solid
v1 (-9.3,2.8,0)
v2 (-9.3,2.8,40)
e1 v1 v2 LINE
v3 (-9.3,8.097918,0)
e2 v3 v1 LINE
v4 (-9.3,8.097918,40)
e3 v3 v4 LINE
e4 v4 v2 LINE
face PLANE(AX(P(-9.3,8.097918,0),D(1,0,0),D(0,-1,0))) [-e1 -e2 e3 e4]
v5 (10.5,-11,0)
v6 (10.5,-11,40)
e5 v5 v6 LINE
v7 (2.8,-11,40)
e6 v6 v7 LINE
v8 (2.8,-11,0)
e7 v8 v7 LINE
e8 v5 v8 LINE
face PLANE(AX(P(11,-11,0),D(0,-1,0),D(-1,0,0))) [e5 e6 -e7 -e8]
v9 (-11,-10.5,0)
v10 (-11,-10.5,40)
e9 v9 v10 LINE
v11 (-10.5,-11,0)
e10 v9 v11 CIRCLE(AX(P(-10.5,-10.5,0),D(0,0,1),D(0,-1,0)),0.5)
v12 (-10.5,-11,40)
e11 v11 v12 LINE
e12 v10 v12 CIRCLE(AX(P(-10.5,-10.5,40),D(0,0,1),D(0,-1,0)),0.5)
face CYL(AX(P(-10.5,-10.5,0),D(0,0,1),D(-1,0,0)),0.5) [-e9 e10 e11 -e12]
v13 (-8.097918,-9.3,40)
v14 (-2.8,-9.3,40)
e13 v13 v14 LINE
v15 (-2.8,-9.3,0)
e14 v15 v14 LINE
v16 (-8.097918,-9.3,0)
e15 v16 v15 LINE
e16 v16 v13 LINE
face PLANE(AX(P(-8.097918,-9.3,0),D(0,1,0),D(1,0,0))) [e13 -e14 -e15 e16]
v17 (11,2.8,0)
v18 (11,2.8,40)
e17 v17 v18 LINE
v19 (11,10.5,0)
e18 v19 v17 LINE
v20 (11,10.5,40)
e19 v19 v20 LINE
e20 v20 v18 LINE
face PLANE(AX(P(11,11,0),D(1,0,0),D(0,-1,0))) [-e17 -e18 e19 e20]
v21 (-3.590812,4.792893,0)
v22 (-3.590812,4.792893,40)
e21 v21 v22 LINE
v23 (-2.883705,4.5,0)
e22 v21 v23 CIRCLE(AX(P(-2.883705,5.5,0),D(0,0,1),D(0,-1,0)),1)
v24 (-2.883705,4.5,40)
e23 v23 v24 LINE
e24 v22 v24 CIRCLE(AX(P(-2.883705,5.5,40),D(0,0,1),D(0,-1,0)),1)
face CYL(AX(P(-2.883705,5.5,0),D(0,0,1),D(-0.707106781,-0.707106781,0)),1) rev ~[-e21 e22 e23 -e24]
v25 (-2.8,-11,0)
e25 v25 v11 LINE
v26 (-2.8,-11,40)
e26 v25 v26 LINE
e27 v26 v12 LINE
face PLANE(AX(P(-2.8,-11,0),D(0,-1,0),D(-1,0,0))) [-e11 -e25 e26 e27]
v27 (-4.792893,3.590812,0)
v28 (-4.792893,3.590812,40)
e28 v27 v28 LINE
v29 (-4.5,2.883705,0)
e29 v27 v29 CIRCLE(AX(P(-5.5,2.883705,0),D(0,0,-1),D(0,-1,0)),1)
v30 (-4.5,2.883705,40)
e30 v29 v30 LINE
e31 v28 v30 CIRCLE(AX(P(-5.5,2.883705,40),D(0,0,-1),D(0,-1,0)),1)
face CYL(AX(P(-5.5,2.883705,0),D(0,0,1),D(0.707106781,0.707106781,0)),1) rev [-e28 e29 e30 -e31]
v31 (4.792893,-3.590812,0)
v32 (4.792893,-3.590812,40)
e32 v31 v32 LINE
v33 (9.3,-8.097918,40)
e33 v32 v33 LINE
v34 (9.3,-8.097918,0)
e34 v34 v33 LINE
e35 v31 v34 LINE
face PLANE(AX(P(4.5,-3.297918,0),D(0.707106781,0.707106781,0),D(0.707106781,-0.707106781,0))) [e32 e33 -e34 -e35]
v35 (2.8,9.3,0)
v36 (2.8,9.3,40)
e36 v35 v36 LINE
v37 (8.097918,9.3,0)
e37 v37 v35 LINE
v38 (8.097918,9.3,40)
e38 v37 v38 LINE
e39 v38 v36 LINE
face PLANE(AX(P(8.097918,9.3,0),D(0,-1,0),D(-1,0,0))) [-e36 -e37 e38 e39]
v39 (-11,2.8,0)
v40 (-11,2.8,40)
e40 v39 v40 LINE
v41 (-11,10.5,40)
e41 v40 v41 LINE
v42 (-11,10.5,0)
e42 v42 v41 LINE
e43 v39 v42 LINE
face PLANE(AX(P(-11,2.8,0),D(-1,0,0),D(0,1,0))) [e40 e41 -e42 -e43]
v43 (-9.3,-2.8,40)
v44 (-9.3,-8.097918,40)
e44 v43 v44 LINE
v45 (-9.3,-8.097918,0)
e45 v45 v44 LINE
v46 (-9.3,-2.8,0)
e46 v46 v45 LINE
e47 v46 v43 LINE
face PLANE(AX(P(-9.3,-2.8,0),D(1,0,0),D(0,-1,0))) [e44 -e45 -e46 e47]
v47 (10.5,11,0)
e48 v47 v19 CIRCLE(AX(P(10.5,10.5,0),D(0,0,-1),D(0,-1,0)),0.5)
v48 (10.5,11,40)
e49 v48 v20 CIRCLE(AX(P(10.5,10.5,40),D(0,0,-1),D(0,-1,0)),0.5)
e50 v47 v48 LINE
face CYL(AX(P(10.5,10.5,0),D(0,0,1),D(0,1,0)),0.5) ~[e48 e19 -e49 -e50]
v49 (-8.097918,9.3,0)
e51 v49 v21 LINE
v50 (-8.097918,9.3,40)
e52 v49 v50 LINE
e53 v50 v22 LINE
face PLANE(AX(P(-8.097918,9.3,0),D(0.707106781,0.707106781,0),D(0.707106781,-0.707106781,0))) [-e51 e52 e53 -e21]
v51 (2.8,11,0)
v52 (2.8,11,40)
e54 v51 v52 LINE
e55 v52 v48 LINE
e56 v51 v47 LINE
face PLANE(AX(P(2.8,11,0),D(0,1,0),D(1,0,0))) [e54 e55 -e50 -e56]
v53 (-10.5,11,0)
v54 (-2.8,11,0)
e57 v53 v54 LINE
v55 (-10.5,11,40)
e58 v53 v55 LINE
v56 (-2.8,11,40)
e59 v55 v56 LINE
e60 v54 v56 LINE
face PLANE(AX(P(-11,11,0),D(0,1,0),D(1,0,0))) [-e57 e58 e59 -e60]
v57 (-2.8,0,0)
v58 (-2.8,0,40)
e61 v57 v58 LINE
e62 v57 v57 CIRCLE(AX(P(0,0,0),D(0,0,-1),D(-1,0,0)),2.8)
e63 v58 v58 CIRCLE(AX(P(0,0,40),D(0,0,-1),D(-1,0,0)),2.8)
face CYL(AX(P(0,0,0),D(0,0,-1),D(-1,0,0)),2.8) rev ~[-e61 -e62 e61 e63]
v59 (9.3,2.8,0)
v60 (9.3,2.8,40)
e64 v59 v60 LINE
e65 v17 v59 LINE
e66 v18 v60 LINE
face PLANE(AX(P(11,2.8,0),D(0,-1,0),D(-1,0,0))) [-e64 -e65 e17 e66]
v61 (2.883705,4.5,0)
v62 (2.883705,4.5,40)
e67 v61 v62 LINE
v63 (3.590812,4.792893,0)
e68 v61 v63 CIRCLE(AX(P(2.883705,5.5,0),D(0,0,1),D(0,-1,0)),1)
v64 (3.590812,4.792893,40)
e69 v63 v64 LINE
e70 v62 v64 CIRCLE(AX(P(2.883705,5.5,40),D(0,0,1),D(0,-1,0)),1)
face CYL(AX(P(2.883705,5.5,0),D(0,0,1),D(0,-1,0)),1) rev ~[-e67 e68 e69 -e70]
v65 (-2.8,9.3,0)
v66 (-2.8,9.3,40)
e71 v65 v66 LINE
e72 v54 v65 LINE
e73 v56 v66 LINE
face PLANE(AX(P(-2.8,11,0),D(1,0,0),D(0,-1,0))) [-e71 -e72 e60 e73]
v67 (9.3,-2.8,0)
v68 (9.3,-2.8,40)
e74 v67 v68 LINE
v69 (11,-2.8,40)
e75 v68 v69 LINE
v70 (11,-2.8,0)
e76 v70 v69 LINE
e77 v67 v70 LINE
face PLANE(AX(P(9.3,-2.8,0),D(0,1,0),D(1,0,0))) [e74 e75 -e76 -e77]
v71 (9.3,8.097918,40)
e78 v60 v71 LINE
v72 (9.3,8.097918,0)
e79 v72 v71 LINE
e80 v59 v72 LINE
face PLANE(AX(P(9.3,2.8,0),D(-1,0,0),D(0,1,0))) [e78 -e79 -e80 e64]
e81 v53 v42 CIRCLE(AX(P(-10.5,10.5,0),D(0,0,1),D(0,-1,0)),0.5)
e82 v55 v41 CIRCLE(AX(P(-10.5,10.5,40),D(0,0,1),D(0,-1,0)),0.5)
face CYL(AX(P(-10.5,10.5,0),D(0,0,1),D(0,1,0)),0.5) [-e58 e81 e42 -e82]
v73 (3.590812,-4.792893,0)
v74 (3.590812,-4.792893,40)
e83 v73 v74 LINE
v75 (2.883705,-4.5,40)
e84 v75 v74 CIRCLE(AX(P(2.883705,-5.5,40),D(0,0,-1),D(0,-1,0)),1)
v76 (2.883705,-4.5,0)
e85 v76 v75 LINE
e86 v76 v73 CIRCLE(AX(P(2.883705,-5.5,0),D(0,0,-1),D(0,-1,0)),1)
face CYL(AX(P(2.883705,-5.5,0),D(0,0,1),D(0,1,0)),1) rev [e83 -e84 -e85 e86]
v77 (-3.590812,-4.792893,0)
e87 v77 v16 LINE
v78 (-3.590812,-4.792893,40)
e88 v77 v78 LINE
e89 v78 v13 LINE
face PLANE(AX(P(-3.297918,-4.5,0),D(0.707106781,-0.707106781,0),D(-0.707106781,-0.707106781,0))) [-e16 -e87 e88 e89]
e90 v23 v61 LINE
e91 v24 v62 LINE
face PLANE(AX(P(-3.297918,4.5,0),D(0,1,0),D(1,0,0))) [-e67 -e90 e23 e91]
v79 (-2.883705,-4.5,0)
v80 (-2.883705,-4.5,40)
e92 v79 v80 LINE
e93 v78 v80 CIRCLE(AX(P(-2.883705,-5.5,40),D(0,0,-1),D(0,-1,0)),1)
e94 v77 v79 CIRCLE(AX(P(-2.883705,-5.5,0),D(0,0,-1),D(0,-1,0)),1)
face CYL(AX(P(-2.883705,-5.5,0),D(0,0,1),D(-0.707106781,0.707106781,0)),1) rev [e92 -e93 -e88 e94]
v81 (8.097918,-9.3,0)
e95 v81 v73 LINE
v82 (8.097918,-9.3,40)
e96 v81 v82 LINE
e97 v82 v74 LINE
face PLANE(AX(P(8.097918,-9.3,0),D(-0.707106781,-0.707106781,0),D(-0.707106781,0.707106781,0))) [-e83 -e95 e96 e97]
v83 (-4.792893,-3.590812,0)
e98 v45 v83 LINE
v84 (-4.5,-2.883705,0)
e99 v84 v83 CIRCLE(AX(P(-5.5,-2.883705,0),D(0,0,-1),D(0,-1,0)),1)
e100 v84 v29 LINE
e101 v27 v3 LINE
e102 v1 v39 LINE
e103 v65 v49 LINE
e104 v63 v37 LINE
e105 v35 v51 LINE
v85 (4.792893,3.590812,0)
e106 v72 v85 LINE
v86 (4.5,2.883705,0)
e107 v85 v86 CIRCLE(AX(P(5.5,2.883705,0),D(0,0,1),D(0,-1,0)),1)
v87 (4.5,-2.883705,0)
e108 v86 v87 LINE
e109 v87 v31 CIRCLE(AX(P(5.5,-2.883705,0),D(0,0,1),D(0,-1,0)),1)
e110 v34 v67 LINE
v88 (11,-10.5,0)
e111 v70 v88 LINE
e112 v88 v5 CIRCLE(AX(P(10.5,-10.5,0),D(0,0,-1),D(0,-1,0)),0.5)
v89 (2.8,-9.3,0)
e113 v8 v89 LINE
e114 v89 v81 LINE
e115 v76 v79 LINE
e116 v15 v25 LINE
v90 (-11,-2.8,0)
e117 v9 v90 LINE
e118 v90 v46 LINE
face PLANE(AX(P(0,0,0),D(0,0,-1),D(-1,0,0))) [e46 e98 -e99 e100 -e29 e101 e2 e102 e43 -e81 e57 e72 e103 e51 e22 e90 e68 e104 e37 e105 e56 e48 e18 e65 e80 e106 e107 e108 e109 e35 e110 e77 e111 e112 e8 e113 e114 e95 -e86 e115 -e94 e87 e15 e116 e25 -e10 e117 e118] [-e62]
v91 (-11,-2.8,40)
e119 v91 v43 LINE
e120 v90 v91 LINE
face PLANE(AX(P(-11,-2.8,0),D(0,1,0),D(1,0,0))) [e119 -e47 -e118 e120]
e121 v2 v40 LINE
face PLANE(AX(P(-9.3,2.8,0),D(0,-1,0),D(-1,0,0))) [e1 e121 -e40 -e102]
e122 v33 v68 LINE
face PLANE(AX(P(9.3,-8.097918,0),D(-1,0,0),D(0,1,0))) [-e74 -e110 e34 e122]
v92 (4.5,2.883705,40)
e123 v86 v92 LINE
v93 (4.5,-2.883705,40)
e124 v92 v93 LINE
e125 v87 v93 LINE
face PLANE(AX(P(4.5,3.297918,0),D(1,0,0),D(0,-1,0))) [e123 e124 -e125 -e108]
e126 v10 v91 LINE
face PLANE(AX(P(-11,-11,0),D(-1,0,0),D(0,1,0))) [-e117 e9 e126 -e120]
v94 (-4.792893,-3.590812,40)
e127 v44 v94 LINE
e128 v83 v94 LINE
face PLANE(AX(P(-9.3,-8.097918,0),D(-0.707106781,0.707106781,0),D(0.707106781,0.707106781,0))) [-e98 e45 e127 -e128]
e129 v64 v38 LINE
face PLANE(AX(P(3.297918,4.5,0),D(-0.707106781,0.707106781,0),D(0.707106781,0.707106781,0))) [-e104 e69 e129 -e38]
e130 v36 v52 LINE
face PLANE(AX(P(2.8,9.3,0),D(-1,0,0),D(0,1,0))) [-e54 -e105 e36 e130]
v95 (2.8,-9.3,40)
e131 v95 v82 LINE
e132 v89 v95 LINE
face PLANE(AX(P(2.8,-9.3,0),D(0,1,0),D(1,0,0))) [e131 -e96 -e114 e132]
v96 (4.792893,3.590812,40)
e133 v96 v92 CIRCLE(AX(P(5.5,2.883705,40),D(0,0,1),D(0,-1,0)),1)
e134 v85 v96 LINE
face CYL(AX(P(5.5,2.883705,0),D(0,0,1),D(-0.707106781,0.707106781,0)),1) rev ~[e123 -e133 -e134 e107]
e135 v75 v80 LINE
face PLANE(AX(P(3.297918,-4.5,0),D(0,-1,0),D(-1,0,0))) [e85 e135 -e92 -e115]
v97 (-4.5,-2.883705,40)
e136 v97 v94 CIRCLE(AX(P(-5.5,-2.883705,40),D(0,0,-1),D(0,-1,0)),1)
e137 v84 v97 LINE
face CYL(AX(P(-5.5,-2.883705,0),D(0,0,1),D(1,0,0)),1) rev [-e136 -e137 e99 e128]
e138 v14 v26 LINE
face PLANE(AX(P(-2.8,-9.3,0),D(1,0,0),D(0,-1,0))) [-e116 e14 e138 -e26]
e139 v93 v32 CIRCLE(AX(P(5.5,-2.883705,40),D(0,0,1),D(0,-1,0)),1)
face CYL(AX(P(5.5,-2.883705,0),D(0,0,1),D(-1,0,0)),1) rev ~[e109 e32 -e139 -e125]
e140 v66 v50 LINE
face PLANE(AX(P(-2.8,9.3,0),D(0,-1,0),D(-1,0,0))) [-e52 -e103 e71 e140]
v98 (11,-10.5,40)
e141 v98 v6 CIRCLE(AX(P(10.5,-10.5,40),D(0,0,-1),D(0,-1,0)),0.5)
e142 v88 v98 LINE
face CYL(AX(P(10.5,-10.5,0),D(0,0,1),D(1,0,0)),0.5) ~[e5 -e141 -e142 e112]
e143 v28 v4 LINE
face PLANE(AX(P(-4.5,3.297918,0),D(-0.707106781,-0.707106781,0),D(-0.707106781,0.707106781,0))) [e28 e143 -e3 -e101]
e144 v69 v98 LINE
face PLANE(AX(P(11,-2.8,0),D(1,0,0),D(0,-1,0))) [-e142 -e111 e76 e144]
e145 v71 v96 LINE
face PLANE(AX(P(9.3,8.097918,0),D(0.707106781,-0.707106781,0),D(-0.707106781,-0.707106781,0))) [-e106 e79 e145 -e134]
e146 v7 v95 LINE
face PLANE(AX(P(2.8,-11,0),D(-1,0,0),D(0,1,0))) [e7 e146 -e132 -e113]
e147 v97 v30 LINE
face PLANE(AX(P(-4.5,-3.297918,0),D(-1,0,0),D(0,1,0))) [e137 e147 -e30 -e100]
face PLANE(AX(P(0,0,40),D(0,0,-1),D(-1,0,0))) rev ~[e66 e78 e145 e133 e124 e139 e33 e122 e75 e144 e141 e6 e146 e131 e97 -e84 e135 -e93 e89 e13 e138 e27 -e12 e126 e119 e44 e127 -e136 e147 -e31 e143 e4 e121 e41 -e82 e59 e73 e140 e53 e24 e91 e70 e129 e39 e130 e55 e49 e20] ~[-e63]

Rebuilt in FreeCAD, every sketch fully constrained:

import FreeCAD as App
import Part
import Sketcher

V = App.Vector


def edges_at(feature, points):
    """Names of the edges that pass closest to the given points."""
    edges = feature.Shape.Edges
    near = lambda p: min(range(len(edges)), key=lambda i: edges[i].distToShape(Part.Vertex(*p))[0])
    return sorted({f"Edge{near(p) + 1}" for p in points})


def add_polygon(sketch, points):
    """Adds a closed chain of lines whose ends are joined by coincident constraints."""
    first, n = sketch.GeometryCount, len(points)
    for a, b in zip(points, points[1:] + points[:1]):
        sketch.addGeometry(Part.LineSegment(App.Vector(*a, 0), App.Vector(*b, 0)), False)
    for i in range(n):
        sketch.addConstraint(Sketcher.Constraint("Coincident", first + i, 2, first + (i + 1) % n, 1))

doc = App.newDocument("Part")
body = doc.addObject("PartDesign::Body", "Body")

# Sketch on XY plane
sketch1 = body.newObject("Sketcher::SketchObject", "Sketch")
sketch1.AttachmentSupport = (doc.getObject("XY_Plane"), [""])
sketch1.MapMode = "FlatFace"
add_polygon(sketch1, [(-2.8, 9.3), (-2.8, 11), (-11, 11), (-11, 2.8), (-9.3, 2.8), (-9.3, 8.1), (-4.5, 3.3), (-4.5, -3.3), (-9.3, -8.1), (-9.3, -2.8), (-11, -2.8), (-11, -11), (-2.8, -11), (-2.8, -9.3), (-8.1, -9.3), (-3.3, -4.5), (3.3, -4.5), (8.1, -9.3), (2.8, -9.3), (2.8, -11), (11, -11), (11, -2.8), (9.3, -2.8), (9.3, -8.1), (4.5, -3.3), (4.5, 3.3), (9.3, 8.1), (9.3, 2.8), (11, 2.8), (11, 11), (2.8, 11), (2.8, 9.3), (8.1, 9.3), (3.3, 4.5), (-3.3, 4.5), (-8.1, 9.3)])  # lines 0-35
sketch1.addConstraint([
    Sketcher.Constraint("Vertical", 0),
    Sketcher.Constraint("Horizontal", 1),
    Sketcher.Constraint("Vertical", 2),
    Sketcher.Constraint("Horizontal", 3),
    Sketcher.Constraint("Vertical", 4),
    Sketcher.Constraint("Vertical", 6),
    Sketcher.Constraint("Vertical", 8),
    Sketcher.Constraint("Horizontal", 9),
    Sketcher.Constraint("Vertical", 10),
    Sketcher.Constraint("Horizontal", 11),
    Sketcher.Constraint("Vertical", 12),
    Sketcher.Constraint("Horizontal", 13),
    Sketcher.Constraint("Horizontal", 15),
    Sketcher.Constraint("Horizontal", 17),
    Sketcher.Constraint("Vertical", 18),
    Sketcher.Constraint("Horizontal", 19),
    Sketcher.Constraint("Vertical", 20),
    Sketcher.Constraint("Horizontal", 21),
    Sketcher.Constraint("Vertical", 22),
    Sketcher.Constraint("Vertical", 24),
    Sketcher.Constraint("Vertical", 26),
    Sketcher.Constraint("Horizontal", 27),
    Sketcher.Constraint("Vertical", 28),
    Sketcher.Constraint("Horizontal", 29),
    Sketcher.Constraint("Vertical", 30),
    Sketcher.Constraint("Horizontal", 31),
    Sketcher.Constraint("Horizontal", 33),
    Sketcher.Constraint("Horizontal", 35),
    Sketcher.Constraint("Symmetric", 0, 2, 18, 2, -1, 1),
    Sketcher.Constraint("Symmetric", 2, 2, 20, 2, -1, 1),
    Sketcher.Constraint("Symmetric", 4, 2, 22, 2, -1, 1),
    Sketcher.Constraint("Symmetric", 5, 2, 23, 2, -1, 1),
    Sketcher.Constraint("Symmetric", 7, 2, 25, 2, -1, 1),
    Sketcher.Constraint("Symmetric", 9, 2, 27, 2, -1, 1),
    Sketcher.Constraint("Symmetric", 11, 2, 29, 2, -1, 1),
    Sketcher.Constraint("Symmetric", 13, 2, 31, 2, -1, 1),
    Sketcher.Constraint("Symmetric", 14, 2, 32, 2, -1, 1),
    Sketcher.Constraint("Symmetric", 16, 2, 34, 2, -1, 1),
    Sketcher.Constraint("Symmetric", 13, 2, 16, 2, -2),
    Sketcher.Constraint("Symmetric", 11, 2, 18, 2, -2),
    Sketcher.Constraint("Symmetric", 9, 2, 20, 2, -2),
    Sketcher.Constraint("Symmetric", 7, 2, 22, 2, -2),
    Sketcher.Constraint("Perpendicular", 5, 7),
    Sketcher.Constraint("Parallel", 7, 14),
    Sketcher.Constraint("Perpendicular", 14, 16),
    Sketcher.Constraint("Perpendicular", 23, 25),
    Sketcher.Constraint("Perpendicular", 32, 34),
    Sketcher.Constraint("Horizontal", 6, 2, 23, 2),
    Sketcher.Constraint("Equal", 27, 0),
    Sketcher.Constraint("Equal", 29, 2),
    Sketcher.Constraint("Equal", 35, 4),
    Sketcher.Constraint("Equal", 33, 6),
    Sketcher.Constraint("Equal", 7, 14),
    Sketcher.Constraint("DistanceX", 1, 2, 1, 1, 8.2),
    Sketcher.Constraint("DistanceX", 3, 1, 3, 2, 1.7),
    Sketcher.Constraint("DistanceY", -1, 1, 0, 2, 11.0),
    Sketcher.Constraint("DistanceX", 5, 2, 24, 2, 9.0),
    Sketcher.Constraint("DistanceX", 13, 2, 13, 1, 5.297918),
])
pad1 = body.newObject("PartDesign::Pad", "Pad")
pad1.Profile = sketch1
pad1.Length = 40

# Sketch on XY plane
sketch2 = body.newObject("Sketcher::SketchObject", "Sketch001")
sketch2.AttachmentSupport = (doc.getObject("XY_Plane"), [""])
sketch2.MapMode = "FlatFace"
sketch2.addGeometry(Part.Circle(V(0, 0, 0), V(0, 0, 1), 2.8), False)
sketch2.addConstraint([
    Sketcher.Constraint("Coincident", 0, 3, -1, 1),
    Sketcher.Constraint("Diameter", 0, 5.6),
])
pocket1 = body.newObject("PartDesign::Pocket", "Pocket")
pocket1.Profile = sketch2
pocket1.Type = "ThroughAll"
pocket1.Reversed = True
doc.recompute()

fillet = body.newObject("PartDesign::Fillet", "Fillet")
fillet.Base = (pocket1, edges_at(pocket1, [
    (-11, 11, 20),
    (11, 11, 20),
    (11, -11, 20),
    (-11, -11, 20),
]))
fillet.Radius = 0.5
doc.recompute()

fillet2 = body.newObject("PartDesign::Fillet", "Fillet001")
fillet2.Base = (fillet, edges_at(fillet, [
    (-4.5, -3.298, 20),
    (-4.5, 3.298, 20),
    (-3.298, 4.5, 20),
    (3.298, 4.5, 20),
    (4.5, 3.298, 20),
    (4.5, -3.298, 20),
    (3.298, -4.5, 20),
    (-3.298, -4.5, 20),
]))
fillet2.Radius = 1

doc.recompute()
